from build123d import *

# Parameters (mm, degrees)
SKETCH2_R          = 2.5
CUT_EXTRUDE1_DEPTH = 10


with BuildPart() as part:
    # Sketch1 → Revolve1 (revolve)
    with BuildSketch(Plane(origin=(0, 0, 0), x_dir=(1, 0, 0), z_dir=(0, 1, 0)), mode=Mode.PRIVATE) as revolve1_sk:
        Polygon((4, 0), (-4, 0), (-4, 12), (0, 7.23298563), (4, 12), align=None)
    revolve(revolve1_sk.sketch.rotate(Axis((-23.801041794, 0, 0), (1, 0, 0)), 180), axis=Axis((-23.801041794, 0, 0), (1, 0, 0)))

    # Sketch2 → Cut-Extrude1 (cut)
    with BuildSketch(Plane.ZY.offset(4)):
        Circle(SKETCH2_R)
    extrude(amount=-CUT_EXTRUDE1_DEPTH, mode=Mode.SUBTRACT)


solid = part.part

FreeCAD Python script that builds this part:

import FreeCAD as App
import Part
import Sketcher

V = App.Vector
Q = App.Units.Quantity

doc = App.newDocument("Part")
body = doc.addObject("PartDesign::Body", "Body")

sketch1 = body.newObject("Sketcher::SketchObject", "Sketch")
sketch1.AttachmentSupport = (doc.getObject("XZ_Plane"), [""])
sketch1.MapMode = "FlatFace"
sketch1.addGeometry([
    Part.LineSegment(V(-4, 0, 0), V(4, 0, 0)),
    Part.LineSegment(V(4, 0, 0), V(4, -12, 0)),
    Part.LineSegment(V(4, -12, 0), V(0, -7, 0)),
    Part.LineSegment(V(0, -7, 0), V(-4, -12, 0)),
    Part.LineSegment(V(-4, -12, 0), V(-4, 0, 0)),
], False)
sketch1.addConstraint([
    Sketcher.Constraint("Coincident", 0, 2, 1, 1),
    Sketcher.Constraint("Coincident", 1, 2, 2, 1),
    Sketcher.Constraint("Coincident", 2, 2, 3, 1),
    Sketcher.Constraint("Coincident", 3, 2, 4, 1),
    Sketcher.Constraint("Coincident", 4, 2, 0, 1),
    Sketcher.Constraint("Horizontal", 0),
    Sketcher.Constraint("Vertical", 1),
    Sketcher.Constraint("Vertical", 4),
    Sketcher.Constraint("Symmetric", 0, 2, 4, 2, -1, 1),
    Sketcher.Constraint("PointOnObject", 2, 2, -2),
    Sketcher.Constraint("Horizontal", 1, 2, 3, 2),
    Sketcher.Constraint("DistanceX", 0, 1, 0, 2, 8.0),
    Sketcher.Constraint("DistanceY", 1, 2, 1, 1, 12.0),
    Sketcher.Constraint("Angle", 2, Q("130 deg")),
])
revolution = body.newObject("PartDesign::Revolution", "Revolution")
revolution.Profile = sketch1
revolution.ReferenceAxis = (sketch1, ["H_Axis"])
revolution.Angle = 360

sketch2 = body.newObject("Sketcher::SketchObject", "Sketch001")
sketch2.AttachmentSupport = (doc.getObject("YZ_Plane"), [""])
sketch2.MapMode = "FlatFace"
sketch2.AttachmentOffset = App.Placement(V(0, 0, -4), App.Rotation())
sketch2.addGeometry(Part.Circle(V(0, 0, 0), V(0, 0, 1), 2.5), False)
sketch2.addConstraint([
    Sketcher.Constraint("Coincident", 0, 3, -1, 1),
    Sketcher.Constraint("Diameter", 0, 5.0),
])
pocket1 = body.newObject("PartDesign::Pocket", "Pocket")
pocket1.Profile = sketch2
pocket1.Length = 10
pocket1.Reversed = True

doc.recompute()
